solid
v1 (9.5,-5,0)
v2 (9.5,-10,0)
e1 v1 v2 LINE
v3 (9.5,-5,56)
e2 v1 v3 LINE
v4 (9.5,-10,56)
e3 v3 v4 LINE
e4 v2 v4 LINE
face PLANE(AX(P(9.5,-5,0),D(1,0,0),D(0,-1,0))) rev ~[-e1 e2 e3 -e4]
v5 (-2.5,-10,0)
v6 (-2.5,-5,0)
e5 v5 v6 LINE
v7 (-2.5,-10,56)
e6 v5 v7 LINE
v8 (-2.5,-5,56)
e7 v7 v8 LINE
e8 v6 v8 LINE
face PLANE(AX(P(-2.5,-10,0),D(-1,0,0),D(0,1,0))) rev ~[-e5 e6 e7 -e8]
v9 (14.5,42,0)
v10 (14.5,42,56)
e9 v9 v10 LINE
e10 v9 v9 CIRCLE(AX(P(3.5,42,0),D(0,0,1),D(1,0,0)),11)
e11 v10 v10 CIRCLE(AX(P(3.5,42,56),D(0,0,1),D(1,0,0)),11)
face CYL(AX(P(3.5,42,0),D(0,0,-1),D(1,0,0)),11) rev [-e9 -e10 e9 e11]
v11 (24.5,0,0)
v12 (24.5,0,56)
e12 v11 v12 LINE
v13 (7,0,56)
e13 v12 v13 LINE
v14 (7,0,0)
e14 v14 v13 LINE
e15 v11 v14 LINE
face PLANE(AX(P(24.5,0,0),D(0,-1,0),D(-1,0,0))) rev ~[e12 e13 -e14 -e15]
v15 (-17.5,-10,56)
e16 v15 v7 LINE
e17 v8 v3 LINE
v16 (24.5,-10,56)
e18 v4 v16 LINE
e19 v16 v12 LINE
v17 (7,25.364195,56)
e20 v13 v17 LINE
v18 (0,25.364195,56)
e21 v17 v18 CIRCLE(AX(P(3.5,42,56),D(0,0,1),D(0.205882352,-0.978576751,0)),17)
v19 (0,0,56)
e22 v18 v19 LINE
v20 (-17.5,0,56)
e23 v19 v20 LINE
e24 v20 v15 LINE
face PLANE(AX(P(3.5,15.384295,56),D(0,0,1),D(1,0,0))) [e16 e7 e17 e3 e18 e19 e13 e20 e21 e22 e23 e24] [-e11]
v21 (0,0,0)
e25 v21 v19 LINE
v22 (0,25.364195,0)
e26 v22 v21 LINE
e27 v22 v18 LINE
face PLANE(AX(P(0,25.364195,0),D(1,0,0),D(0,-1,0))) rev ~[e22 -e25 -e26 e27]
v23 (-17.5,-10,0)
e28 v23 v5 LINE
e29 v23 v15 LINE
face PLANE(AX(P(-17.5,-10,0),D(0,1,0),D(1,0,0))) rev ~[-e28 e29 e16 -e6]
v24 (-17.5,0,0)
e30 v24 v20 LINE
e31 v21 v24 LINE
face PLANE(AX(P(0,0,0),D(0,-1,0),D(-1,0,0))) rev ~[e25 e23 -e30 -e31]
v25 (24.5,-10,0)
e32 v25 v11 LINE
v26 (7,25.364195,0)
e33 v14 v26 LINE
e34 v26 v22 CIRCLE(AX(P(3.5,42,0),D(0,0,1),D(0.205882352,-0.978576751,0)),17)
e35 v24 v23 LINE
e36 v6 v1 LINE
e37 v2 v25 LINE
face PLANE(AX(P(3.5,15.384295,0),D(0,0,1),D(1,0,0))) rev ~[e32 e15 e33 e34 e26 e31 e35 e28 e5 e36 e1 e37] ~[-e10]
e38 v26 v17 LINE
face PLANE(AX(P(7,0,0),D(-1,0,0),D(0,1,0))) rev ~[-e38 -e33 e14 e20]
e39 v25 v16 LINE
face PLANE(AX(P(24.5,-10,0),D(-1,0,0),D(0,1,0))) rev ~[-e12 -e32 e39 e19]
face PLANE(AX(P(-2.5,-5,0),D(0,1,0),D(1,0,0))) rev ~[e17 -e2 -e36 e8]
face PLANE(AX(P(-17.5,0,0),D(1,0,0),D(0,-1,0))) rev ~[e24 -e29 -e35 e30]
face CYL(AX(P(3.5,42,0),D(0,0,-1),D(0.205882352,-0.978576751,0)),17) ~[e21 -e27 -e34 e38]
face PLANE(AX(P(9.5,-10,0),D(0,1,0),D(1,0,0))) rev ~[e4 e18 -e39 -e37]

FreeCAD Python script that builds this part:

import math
import FreeCAD as App
import Part
import Sketcher
Q = App.Units.Quantity

doc = App.newDocument("Part")
body = doc.addObject("PartDesign::Body", "Body")

# Sketch on XY plane
sketch1 = doc.addObject("Sketcher::SketchObject", "Sketch")
body.addObject(sketch1)
sketch1.AttachmentSupport = (doc.XY_Plane, [""])
sketch1.MapMode = "FlatFace"
sketch1.addGeometry(Part.LineSegment(App.Vector(0, 25, 0), App.Vector(0, 0, 0)), False)
sketch1.addGeometry(Part.LineSegment(App.Vector(0, 0, 0), App.Vector(-18, 0, 0)), False)
sketch1.addGeometry(Part.LineSegment(App.Vector(-18, 0, 0), App.Vector(-18, -10, 0)), False)
sketch1.addGeometry(Part.LineSegment(App.Vector(-18, -10, 0), App.Vector(-2, -10, 0)), False)
sketch1.addGeometry(Part.LineSegment(App.Vector(-2, -10, 0), App.Vector(-2, -5, 0)), False)
sketch1.addGeometry(Part.LineSegment(App.Vector(-2, -5, 0), App.Vector(10, -5, 0)), False)
sketch1.addGeometry(Part.LineSegment(App.Vector(10, -5, 0), App.Vector(10, -10, 0)), False)
sketch1.addGeometry(Part.LineSegment(App.Vector(10, -10, 0), App.Vector(24, -10, 0)), False)
sketch1.addGeometry(Part.LineSegment(App.Vector(24, -10, 0), App.Vector(24, 0, 0)), False)
sketch1.addGeometry(Part.LineSegment(App.Vector(24, 0, 0), App.Vector(7, 0, 0)), False)
sketch1.addGeometry(Part.LineSegment(App.Vector(7, 0, 0), App.Vector(7, 25, 0)), False)
sketch1.addGeometry(Part.ArcOfCircle(Part.Circle(App.Vector(4, 42, 0), App.Vector(0, 0, 1), 17), math.radians(-78), math.radians(258)), False)
sketch1.addGeometry(Part.Circle(App.Vector(4, 42, 0), App.Vector(0, 0, 1), 11), False)
sketch1.addConstraint(Sketcher.Constraint("Coincident", 0, 2, 1, 1))
sketch1.addConstraint(Sketcher.Constraint("Coincident", 1, 2, 2, 1))
sketch1.addConstraint(Sketcher.Constraint("Coincident", 2, 2, 3, 1))
sketch1.addConstraint(Sketcher.Constraint("Coincident", 3, 2, 4, 1))
sketch1.addConstraint(Sketcher.Constraint("Coincident", 4, 2, 5, 1))
sketch1.addConstraint(Sketcher.Constraint("Coincident", 5, 2, 6, 1))
sketch1.addConstraint(Sketcher.Constraint("Coincident", 6, 2, 7, 1))
sketch1.addConstraint(Sketcher.Constraint("Coincident", 7, 2, 8, 1))
sketch1.addConstraint(Sketcher.Constraint("Coincident", 8, 2, 9, 1))
sketch1.addConstraint(Sketcher.Constraint("Coincident", 9, 2, 10, 1))
sketch1.addConstraint(Sketcher.Constraint("Coincident", 10, 2, 11, 1))
sketch1.addConstraint(Sketcher.Constraint("Coincident", 11, 2, 0, 1))
sketch1.addConstraint(Sketcher.Constraint("Vertical", 0))
sketch1.addConstraint(Sketcher.Constraint("Horizontal", 1))
sketch1.addConstraint(Sketcher.Constraint("Vertical", 2))
sketch1.addConstraint(Sketcher.Constraint("Horizontal", 3))
sketch1.addConstraint(Sketcher.Constraint("Vertical", 4))
sketch1.addConstraint(Sketcher.Constraint("Horizontal", 5))
sketch1.addConstraint(Sketcher.Constraint("Vertical", 6))
sketch1.addConstraint(Sketcher.Constraint("Horizontal", 7))
sketch1.addConstraint(Sketcher.Constraint("Vertical", 8))
sketch1.addConstraint(Sketcher.Constraint("Horizontal", 9))
sketch1.addConstraint(Sketcher.Constraint("Vertical", 10))
sketch1.addConstraint(Sketcher.Constraint("Coincident", 0, 2, -1, 1))
sketch1.addConstraint(Sketcher.Constraint("Coincident", 12, 3, 11, 3))
sketch1.addConstraint(Sketcher.Constraint("PointOnObject", 8, 2, -1))
sketch1.addConstraint(Sketcher.Constraint("Horizontal", 3, 2, 6, 2))
sketch1.addConstraint(Sketcher.Constraint("Horizontal", 10, 2, 11, 2))
sketch1.addConstraint(Sketcher.Constraint("Equal", 3, 7))
sketch1.addConstraint(Sketcher.Constraint("Equal", 1, 9))
sketch1.addConstraint(Sketcher.Constraint("Diameter", 12, Q("22 mm")))
sketch1.addConstraint(Sketcher.Constraint("Radius", 11, Q("17 mm")))
sketch1.addConstraint(Sketcher.Constraint("DistanceX", 3, 1, 3, 2, Q("15 mm")))
sketch1.addConstraint(Sketcher.Constraint("DistanceX", 5, 1, 5, 2, Q("12 mm")))
sketch1.addConstraint(Sketcher.Constraint("DistanceY", 2, 2, 2, 1, Q("10 mm")))
sketch1.addConstraint(Sketcher.Constraint("DistanceY", 4, 1, 4, 2, Q("5 mm")))
sketch1.addConstraint(Sketcher.Constraint("DistanceX", 1, 2, 1, 1, Q("17.5 mm")))
sketch1.addConstraint(Sketcher.Constraint("DistanceY", -1, 1, 11, 3, Q("42 mm")))
pad1 = doc.addObject("PartDesign::Pad", "Pad")
body.addObject(pad1)
pad1.Profile = sketch1
pad1.Length = 56

doc.recompute()
